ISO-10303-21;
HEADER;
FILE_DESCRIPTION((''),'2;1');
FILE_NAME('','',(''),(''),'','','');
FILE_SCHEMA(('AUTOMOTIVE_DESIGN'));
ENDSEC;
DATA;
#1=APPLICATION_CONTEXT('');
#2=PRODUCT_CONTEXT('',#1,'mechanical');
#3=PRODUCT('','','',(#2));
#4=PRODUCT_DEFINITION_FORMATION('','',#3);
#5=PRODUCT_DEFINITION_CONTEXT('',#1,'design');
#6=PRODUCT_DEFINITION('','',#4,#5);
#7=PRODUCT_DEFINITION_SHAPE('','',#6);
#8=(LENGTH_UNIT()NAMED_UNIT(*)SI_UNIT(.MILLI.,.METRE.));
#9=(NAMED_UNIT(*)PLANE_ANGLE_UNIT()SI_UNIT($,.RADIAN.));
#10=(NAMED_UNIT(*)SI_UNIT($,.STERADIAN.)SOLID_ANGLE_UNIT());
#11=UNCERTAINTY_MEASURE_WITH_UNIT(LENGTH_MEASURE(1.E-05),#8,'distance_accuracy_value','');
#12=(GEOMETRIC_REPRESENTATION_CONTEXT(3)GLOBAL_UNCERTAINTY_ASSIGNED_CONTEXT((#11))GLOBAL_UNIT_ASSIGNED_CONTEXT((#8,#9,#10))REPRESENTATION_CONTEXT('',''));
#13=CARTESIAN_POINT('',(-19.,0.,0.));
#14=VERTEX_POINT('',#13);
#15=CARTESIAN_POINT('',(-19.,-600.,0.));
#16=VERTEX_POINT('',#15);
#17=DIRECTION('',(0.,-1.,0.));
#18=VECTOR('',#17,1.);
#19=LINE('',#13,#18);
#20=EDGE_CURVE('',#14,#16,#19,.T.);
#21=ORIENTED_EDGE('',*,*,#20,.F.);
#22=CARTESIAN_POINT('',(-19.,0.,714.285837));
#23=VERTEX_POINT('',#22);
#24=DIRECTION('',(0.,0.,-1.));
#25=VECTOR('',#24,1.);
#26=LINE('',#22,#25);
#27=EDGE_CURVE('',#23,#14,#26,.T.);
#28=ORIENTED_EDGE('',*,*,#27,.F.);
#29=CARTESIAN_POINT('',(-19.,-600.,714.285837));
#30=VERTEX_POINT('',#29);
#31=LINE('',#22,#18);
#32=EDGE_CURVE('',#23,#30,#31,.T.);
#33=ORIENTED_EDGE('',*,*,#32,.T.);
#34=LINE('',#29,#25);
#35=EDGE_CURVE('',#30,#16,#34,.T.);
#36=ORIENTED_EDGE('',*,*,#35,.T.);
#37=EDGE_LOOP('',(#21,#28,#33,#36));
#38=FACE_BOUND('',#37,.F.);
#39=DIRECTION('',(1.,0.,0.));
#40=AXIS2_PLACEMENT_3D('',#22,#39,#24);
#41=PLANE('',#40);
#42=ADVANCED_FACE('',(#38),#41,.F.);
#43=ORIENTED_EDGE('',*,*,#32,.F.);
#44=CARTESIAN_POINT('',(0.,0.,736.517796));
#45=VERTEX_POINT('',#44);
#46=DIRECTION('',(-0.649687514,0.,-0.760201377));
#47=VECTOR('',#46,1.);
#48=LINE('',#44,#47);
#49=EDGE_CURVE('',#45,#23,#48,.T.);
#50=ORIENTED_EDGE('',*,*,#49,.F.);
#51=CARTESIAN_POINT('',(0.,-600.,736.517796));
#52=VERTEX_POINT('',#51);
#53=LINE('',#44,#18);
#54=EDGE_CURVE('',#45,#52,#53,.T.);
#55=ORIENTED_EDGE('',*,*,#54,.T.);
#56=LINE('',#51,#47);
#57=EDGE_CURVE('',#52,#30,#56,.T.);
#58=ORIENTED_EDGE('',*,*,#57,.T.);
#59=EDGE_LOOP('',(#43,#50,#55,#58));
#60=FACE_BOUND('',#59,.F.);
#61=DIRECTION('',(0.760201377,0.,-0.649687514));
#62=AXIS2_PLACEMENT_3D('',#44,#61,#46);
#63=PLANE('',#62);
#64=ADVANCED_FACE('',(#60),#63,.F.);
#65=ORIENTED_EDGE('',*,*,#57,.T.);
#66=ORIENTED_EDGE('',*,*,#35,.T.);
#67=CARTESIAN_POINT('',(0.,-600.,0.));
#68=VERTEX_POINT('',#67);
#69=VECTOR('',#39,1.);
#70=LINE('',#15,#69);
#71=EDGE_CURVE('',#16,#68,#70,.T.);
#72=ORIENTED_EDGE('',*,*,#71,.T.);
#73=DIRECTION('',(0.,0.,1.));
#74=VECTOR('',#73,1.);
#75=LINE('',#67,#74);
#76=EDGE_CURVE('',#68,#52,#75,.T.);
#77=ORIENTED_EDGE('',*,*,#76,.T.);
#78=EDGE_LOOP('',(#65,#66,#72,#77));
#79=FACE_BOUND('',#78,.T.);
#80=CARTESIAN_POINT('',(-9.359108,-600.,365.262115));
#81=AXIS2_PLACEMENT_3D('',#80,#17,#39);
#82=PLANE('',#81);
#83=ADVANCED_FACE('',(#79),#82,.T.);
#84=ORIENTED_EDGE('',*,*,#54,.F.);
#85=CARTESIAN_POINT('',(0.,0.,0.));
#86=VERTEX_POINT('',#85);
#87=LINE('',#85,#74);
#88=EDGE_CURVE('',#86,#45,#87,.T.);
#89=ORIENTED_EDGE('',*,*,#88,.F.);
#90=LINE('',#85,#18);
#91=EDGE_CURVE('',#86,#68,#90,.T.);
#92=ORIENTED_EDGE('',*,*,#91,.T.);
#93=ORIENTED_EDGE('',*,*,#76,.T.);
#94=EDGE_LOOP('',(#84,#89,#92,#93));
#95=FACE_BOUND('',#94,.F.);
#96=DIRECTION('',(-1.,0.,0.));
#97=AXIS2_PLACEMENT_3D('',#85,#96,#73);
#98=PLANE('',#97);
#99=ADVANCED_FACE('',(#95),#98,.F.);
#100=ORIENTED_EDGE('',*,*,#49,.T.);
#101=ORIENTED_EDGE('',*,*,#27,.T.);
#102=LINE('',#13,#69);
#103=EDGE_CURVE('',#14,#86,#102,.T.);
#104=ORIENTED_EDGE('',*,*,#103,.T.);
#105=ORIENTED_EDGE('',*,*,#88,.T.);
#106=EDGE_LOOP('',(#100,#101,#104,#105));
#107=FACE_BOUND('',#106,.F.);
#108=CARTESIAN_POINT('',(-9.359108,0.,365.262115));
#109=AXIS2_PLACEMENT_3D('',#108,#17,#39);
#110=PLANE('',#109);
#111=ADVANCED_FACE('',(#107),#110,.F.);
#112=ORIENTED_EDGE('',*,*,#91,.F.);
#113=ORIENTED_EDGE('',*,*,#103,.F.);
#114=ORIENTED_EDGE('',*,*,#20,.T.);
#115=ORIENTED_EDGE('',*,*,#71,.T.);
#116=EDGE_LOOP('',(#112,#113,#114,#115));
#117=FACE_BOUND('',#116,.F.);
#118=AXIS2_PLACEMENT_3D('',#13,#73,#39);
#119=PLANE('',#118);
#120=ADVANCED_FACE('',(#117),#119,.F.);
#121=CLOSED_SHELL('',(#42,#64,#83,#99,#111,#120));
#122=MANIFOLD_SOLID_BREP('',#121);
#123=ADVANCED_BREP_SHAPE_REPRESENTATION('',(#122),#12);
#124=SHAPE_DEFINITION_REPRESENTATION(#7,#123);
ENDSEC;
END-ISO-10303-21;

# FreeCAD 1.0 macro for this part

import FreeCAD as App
import Part
import Sketcher

V = App.Vector
Q = App.Units.Quantity

doc = App.newDocument("Part")
params = doc.addObject("Spreadsheet::Sheet", "Params")
for row, (alias, value) in enumerate([
    ("sketch1_width", "19 mm"),
    ("pad1_length", "600 mm"),
], start=1):
    params.set(f"A{row}", alias)
    params.set(f"B{row}", "=" + value)
    params.setAlias(f"B{row}", alias)

body = doc.addObject("PartDesign::Body", "Body")

sketch1 = body.newObject("Sketcher::SketchObject", "Sketch")
sketch1.AttachmentSupport = (doc.getObject("XZ_Plane"), [""])
sketch1.MapMode = "FlatFace"
sketch1.addGeometry(Part.LineSegment(V(0, 0, 0), V(0, 737, 0)), False)
sketch1.addGeometry(Part.LineSegment(V(0, 737, 0), V(-19, 714, 0)), False)
sketch1.addGeometry(Part.LineSegment(V(-19, 714, 0), V(-19, 0, 0)), False)
sketch1.addGeometry(Part.LineSegment(V(-19, 0, 0), V(0, 0, 0)), False)
sketch1.addConstraint(Sketcher.Constraint("Coincident", 0, 2, 1, 1))
sketch1.addConstraint(Sketcher.Constraint("Coincident", 1, 2, 2, 1))
sketch1.addConstraint(Sketcher.Constraint("Coincident", 2, 2, 3, 1))
sketch1.addConstraint(Sketcher.Constraint("Coincident", 3, 2, 0, 1))
sketch1.addConstraint(Sketcher.Constraint("Vertical", 0))
sketch1.addConstraint(Sketcher.Constraint("Vertical", 2))
sketch1.addConstraint(Sketcher.Constraint("Horizontal", 3))
sketch1.addConstraint(Sketcher.Constraint("Coincident", 3, 2, -1, 1))
sketch1.addConstraint(Sketcher.Constraint("DistanceX", 3, 1, 3, 2, Q("19 mm")))
sketch1.addConstraint(Sketcher.Constraint("Distance", 1, Q("29.244829 mm")))
sketch1.addConstraint(Sketcher.Constraint("DistanceY", 0, 1, 0, 2, Q("736.517796 mm")))
sketch1.setExpression("Constraints[8]", "Params.sketch1_width")
pad1 = body.newObject("PartDesign::Pad", "Pad")
pad1.Profile = sketch1
pad1.setExpression("Length", "Params.pad1_length")

doc.recompute()
